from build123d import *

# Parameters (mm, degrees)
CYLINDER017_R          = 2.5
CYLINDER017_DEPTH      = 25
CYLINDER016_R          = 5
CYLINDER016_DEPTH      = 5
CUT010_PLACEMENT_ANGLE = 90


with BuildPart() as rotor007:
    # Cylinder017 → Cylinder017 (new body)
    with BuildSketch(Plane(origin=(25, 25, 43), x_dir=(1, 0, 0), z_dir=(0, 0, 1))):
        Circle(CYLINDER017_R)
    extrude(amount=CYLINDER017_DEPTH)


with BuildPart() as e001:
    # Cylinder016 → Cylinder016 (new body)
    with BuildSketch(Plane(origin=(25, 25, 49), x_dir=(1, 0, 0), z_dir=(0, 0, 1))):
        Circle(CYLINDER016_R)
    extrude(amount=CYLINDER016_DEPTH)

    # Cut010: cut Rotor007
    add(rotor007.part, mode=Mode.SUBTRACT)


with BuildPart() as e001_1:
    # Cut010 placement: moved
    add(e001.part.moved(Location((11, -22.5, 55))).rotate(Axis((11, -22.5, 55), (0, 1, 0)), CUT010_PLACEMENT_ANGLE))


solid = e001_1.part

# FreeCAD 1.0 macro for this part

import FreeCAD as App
import Part
import Sketcher

V = App.Vector
Q = App.Units.Quantity

doc = App.newDocument("Part")
params = doc.addObject("Spreadsheet::Sheet", "Params")
for row, (alias, value) in enumerate([
    ("sketch1_diameter", "5 mm"),
    ("pad1_length", "25 mm"),
    ("sketch2_diameter", "10 mm"),
    ("pad2_length", "5 mm"),
], start=1):
    params.set(f"A{row}", alias)
    params.set(f"B{row}", "=" + value)
    params.setAlias(f"B{row}", alias)

body = doc.addObject("PartDesign::Body", "Body")

# Sketch on XY plane
sketch1 = body.newObject("Sketcher::SketchObject", "Sketch")
sketch1.AttachmentSupport = (doc.getObject("XY_Plane"), [""])
sketch1.MapMode = "FlatFace"
sketch1.AttachmentOffset = App.Placement(V(0, 0, 43), App.Rotation())
sketch1.addGeometry(Part.Circle(V(25, 25, 0), V(0, 0, 1), 2.5), False)
sketch1.addConstraint(Sketcher.Constraint("Diameter", 0, Q("5 mm")))
sketch1.addConstraint(Sketcher.Constraint("DistanceX", -1, 1, 0, 3, Q("25 mm")))
sketch1.addConstraint(Sketcher.Constraint("DistanceY", -1, 1, 0, 3, Q("25 mm")))
sketch1.setExpression("Constraints[0]", "Params.sketch1_diameter")
pad1 = body.newObject("PartDesign::Pad", "Pad")
pad1.Profile = sketch1
pad1.setExpression("Length", "Params.pad1_length")
body2 = doc.addObject("PartDesign::Body", "Body001")

# Sketch on XY plane
sketch2 = body2.newObject("Sketcher::SketchObject", "Sketch001")
sketch2.AttachmentSupport = (doc.getObject("XY_Plane001"), [""])
sketch2.MapMode = "FlatFace"
sketch2.AttachmentOffset = App.Placement(V(0, 0, 49), App.Rotation())
sketch2.addGeometry(Part.Circle(V(25, 25, 0), V(0, 0, 1), 5), False)
sketch2.addConstraint(Sketcher.Constraint("Diameter", 0, Q("10 mm")))
sketch2.addConstraint(Sketcher.Constraint("DistanceX", -1, 1, 0, 3, Q("25 mm")))
sketch2.addConstraint(Sketcher.Constraint("DistanceY", -1, 1, 0, 3, Q("25 mm")))
sketch2.setExpression("Constraints[0]", "Params.sketch2_diameter")
pad2 = body2.newObject("PartDesign::Pad", "Pad001")
pad2.Profile = sketch2
pad2.setExpression("Length", "Params.pad2_length")
doc.recompute()

boolean = body2.newObject("PartDesign::Boolean", "Boolean")
boolean.Type = "Cut"
boolean.addObjects([body])
body3 = doc.addObject("PartDesign::Body", "Body002")
doc.recompute()

body2.Placement = App.Placement(V(11, -22.5, 55), App.Rotation(V(0, 1, 0), 90))
boolean2 = body3.newObject("PartDesign::Boolean", "Boolean001")
boolean2.Type = "Fuse"
boolean2.addObjects([body2])

doc.recompute()
